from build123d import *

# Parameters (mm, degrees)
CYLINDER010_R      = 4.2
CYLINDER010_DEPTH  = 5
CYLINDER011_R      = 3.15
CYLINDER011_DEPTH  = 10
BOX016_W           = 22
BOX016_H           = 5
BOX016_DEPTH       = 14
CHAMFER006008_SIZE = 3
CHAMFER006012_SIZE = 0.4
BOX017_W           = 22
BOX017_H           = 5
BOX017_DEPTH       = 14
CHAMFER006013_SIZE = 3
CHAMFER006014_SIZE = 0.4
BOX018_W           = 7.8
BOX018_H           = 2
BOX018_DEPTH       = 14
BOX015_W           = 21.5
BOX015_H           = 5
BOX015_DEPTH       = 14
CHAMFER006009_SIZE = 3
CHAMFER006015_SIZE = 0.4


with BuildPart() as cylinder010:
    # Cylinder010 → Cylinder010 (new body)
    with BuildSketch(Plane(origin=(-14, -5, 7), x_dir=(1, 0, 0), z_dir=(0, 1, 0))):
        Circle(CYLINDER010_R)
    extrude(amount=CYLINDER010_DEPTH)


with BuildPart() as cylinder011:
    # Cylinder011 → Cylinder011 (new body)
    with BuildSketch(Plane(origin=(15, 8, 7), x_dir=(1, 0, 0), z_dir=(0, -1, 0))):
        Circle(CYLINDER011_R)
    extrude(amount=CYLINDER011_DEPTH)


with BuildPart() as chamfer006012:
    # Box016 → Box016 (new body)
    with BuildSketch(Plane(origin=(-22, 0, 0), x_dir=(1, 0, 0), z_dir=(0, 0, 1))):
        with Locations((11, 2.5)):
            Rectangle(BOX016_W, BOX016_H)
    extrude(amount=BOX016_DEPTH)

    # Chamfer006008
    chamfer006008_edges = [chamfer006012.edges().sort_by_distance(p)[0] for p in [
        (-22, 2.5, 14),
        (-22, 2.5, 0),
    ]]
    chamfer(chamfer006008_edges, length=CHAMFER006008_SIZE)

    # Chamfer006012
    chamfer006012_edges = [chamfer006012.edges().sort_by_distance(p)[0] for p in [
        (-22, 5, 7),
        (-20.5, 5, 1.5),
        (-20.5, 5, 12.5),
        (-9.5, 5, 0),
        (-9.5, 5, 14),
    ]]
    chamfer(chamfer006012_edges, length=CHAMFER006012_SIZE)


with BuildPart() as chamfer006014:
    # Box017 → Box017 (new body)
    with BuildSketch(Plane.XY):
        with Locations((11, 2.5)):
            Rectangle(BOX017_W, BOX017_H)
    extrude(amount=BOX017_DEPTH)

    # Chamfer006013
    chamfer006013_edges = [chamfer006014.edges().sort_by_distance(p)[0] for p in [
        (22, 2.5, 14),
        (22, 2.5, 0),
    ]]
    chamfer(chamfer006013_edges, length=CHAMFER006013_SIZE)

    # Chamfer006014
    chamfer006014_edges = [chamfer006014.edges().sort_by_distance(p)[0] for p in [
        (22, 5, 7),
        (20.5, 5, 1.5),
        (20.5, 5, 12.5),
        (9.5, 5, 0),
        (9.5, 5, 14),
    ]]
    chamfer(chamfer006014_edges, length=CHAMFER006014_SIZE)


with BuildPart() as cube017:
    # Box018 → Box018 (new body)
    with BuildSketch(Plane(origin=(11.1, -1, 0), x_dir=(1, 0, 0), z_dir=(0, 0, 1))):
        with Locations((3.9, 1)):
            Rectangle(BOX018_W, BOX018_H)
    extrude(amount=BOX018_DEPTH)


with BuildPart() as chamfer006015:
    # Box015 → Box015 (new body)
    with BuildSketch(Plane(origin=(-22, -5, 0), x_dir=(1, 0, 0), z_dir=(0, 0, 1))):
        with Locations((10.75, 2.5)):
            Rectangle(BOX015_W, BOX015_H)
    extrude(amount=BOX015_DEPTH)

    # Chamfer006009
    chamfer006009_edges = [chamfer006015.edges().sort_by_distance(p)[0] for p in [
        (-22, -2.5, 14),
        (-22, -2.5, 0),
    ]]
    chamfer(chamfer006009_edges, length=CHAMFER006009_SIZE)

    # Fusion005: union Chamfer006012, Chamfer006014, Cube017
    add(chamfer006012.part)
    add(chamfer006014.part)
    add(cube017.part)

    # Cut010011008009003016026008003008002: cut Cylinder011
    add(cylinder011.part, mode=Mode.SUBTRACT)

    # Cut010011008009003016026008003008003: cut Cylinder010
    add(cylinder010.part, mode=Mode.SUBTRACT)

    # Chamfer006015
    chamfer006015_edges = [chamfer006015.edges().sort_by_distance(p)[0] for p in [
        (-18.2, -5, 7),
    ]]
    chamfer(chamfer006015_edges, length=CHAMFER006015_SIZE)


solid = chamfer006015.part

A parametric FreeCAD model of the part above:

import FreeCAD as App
import Part
import Sketcher

V = App.Vector
Q = App.Units.Quantity


def edges_at(feature, points):
    """Names of the edges that pass closest to the given points."""
    edges = feature.Shape.Edges
    near = lambda p: min(range(len(edges)), key=lambda i: edges[i].distToShape(Part.Vertex(*p))[0])
    return sorted({f"Edge{near(p) + 1}" for p in points})

doc = App.newDocument("Part")
body = doc.addObject("PartDesign::Body", "Body")

sketch1 = body.newObject("Sketcher::SketchObject", "Sketch")
sketch1.AttachmentSupport = (doc.getObject("XZ_Plane"), [""])
sketch1.MapMode = "FlatFace"
sketch1.AttachmentOffset = App.Placement(V(0, 0, 5), App.Rotation())
sketch1.addGeometry(Part.Circle(V(-14, 7, 0), V(0, 0, 1), 4.2), False)
sketch1.addConstraint(Sketcher.Constraint("Diameter", 0, Q("8.4 mm")))
sketch1.addConstraint(Sketcher.Constraint("DistanceX", 0, 3, -1, 1, Q("14 mm")))
sketch1.addConstraint(Sketcher.Constraint("DistanceY", -1, 1, 0, 3, Q("7 mm")))
pad1 = body.newObject("PartDesign::Pad", "Pad")
pad1.Profile = sketch1
pad1.Length = 5
pad1.Reversed = True
body2 = doc.addObject("PartDesign::Body", "Body001")

sketch2 = body2.newObject("Sketcher::SketchObject", "Sketch001")
sketch2.AttachmentSupport = (doc.getObject("XZ_Plane001"), [""])
sketch2.MapMode = "FlatFace"
sketch2.AttachmentOffset = App.Placement(V(0, 0, -8), App.Rotation())
sketch2.addGeometry(Part.Circle(V(15, 7, 0), V(0, 0, 1), 3.1), False)
sketch2.addConstraint(Sketcher.Constraint("Diameter", 0, Q("6.3 mm")))
sketch2.addConstraint(Sketcher.Constraint("DistanceX", -1, 1, 0, 3, Q("15 mm")))
sketch2.addConstraint(Sketcher.Constraint("DistanceY", -1, 1, 0, 3, Q("7 mm")))
pad2 = body2.newObject("PartDesign::Pad", "Pad001")
pad2.Profile = sketch2
pad2.Length = 10
body3 = doc.addObject("PartDesign::Body", "Body002")

sketch3 = body3.newObject("Sketcher::SketchObject", "Sketch002")
sketch3.AttachmentSupport = (doc.getObject("XY_Plane002"), [""])
sketch3.MapMode = "FlatFace"
sketch3.addGeometry(Part.LineSegment(V(-22, 5, 0), V(-22, 0, 0)), False)
sketch3.addGeometry(Part.LineSegment(V(-22, 0, 0), V(0, 0, 0)), False)
sketch3.addGeometry(Part.LineSegment(V(0, 0, 0), V(0, 5, 0)), False)
sketch3.addGeometry(Part.LineSegment(V(0, 5, 0), V(-22, 5, 0)), False)
sketch3.addConstraint(Sketcher.Constraint("Coincident", 0, 2, 1, 1))
sketch3.addConstraint(Sketcher.Constraint("Coincident", 1, 2, 2, 1))
sketch3.addConstraint(Sketcher.Constraint("Coincident", 2, 2, 3, 1))
sketch3.addConstraint(Sketcher.Constraint("Coincident", 3, 2, 0, 1))
sketch3.addConstraint(Sketcher.Constraint("Vertical", 0))
sketch3.addConstraint(Sketcher.Constraint("Horizontal", 1))
sketch3.addConstraint(Sketcher.Constraint("Vertical", 2))
sketch3.addConstraint(Sketcher.Constraint("Horizontal", 3))
sketch3.addConstraint(Sketcher.Constraint("Coincident", 1, 2, -1, 1))
sketch3.addConstraint(Sketcher.Constraint("DistanceX", 1, 1, 1, 2, Q("22 mm")))
sketch3.addConstraint(Sketcher.Constraint("DistanceY", 0, 2, 0, 1, Q("5 mm")))
pad3 = body3.newObject("PartDesign::Pad", "Pad002")
pad3.Profile = sketch3
pad3.Length = 14
doc.recompute()

chamfer = body3.newObject("PartDesign::Chamfer", "Chamfer")
chamfer.Base = (pad3, edges_at(pad3, [(-22, 2.5, 14), (-22, 2.5, 0)]))
chamfer.Size = 3
doc.recompute()

chamfer2 = body3.newObject("PartDesign::Chamfer", "Chamfer001")
chamfer2.Base = (chamfer, edges_at(chamfer, [
    (-22, 5, 7),
    (-20.5, 5, 1.5),
    (-20.5, 5, 12.5),
    (-9.5, 5, 0),
    (-9.5, 5, 14),
]))
chamfer2.Size = 0.4
body4 = doc.addObject("PartDesign::Body", "Body003")

sketch4 = body4.newObject("Sketcher::SketchObject", "Sketch003")
sketch4.AttachmentSupport = (doc.getObject("XY_Plane003"), [""])
sketch4.MapMode = "FlatFace"
sketch4.addGeometry(Part.LineSegment(V(0, 5, 0), V(0, 0, 0)), False)
sketch4.addGeometry(Part.LineSegment(V(0, 0, 0), V(22, 0, 0)), False)
sketch4.addGeometry(Part.LineSegment(V(22, 0, 0), V(22, 5, 0)), False)
sketch4.addGeometry(Part.LineSegment(V(22, 5, 0), V(0, 5, 0)), False)
sketch4.addConstraint(Sketcher.Constraint("Coincident", 0, 2, 1, 1))
sketch4.addConstraint(Sketcher.Constraint("Coincident", 1, 2, 2, 1))
sketch4.addConstraint(Sketcher.Constraint("Coincident", 2, 2, 3, 1))
sketch4.addConstraint(Sketcher.Constraint("Coincident", 3, 2, 0, 1))
sketch4.addConstraint(Sketcher.Constraint("Vertical", 0))
sketch4.addConstraint(Sketcher.Constraint("Horizontal", 1))
sketch4.addConstraint(Sketcher.Constraint("Vertical", 2))
sketch4.addConstraint(Sketcher.Constraint("Horizontal", 3))
sketch4.addConstraint(Sketcher.Constraint("Coincident", 0, 2, -1, 1))
sketch4.addConstraint(Sketcher.Constraint("DistanceX", 1, 1, 1, 2, Q("22 mm")))
sketch4.addConstraint(Sketcher.Constraint("DistanceY", 0, 2, 0, 1, Q("5 mm")))
pad4 = body4.newObject("PartDesign::Pad", "Pad003")
pad4.Profile = sketch4
pad4.Length = 14
doc.recompute()

chamfer3 = body4.newObject("PartDesign::Chamfer", "Chamfer002")
chamfer3.Base = (pad4, edges_at(pad4, [(22, 2.5, 14), (22, 2.5, 0)]))
chamfer3.Size = 3
doc.recompute()

chamfer4 = body4.newObject("PartDesign::Chamfer", "Chamfer003")
chamfer4.Base = (chamfer3, edges_at(chamfer3, [
    (22, 5, 7),
    (20.5, 5, 1.5),
    (20.5, 5, 12.5),
    (9.5, 5, 0),
    (9.5, 5, 14),
]))
chamfer4.Size = 0.4
body5 = doc.addObject("PartDesign::Body", "Body004")

sketch5 = body5.newObject("Sketcher::SketchObject", "Sketch004")
sketch5.AttachmentSupport = (doc.getObject("XY_Plane004"), [""])
sketch5.MapMode = "FlatFace"
sketch5.addGeometry(Part.LineSegment(V(11.1, 1, 0), V(11.1, -1, 0)), False)
sketch5.addGeometry(Part.LineSegment(V(11.1, -1, 0), V(18.9, -1, 0)), False)
sketch5.addGeometry(Part.LineSegment(V(18.9, -1, 0), V(18.9, 1, 0)), False)
sketch5.addGeometry(Part.LineSegment(V(18.9, 1, 0), V(11.1, 1, 0)), False)
sketch5.addConstraint(Sketcher.Constraint("Coincident", 0, 2, 1, 1))
sketch5.addConstraint(Sketcher.Constraint("Coincident", 1, 2, 2, 1))
sketch5.addConstraint(Sketcher.Constraint("Coincident", 2, 2, 3, 1))
sketch5.addConstraint(Sketcher.Constraint("Coincident", 3, 2, 0, 1))
sketch5.addConstraint(Sketcher.Constraint("Vertical", 0))
sketch5.addConstraint(Sketcher.Constraint("Horizontal", 1))
sketch5.addConstraint(Sketcher.Constraint("Vertical", 2))
sketch5.addConstraint(Sketcher.Constraint("Horizontal", 3))
sketch5.addConstraint(Sketcher.Constraint("DistanceY", 0, 2, 0, 1, Q("2 mm")))
sketch5.addConstraint(Sketcher.Constraint("DistanceX", 1, 1, 1, 2, Q("7.8 mm")))
sketch5.addConstraint(Sketcher.Constraint("DistanceY", 0, 2, -1, 1, Q("1 mm")))
sketch5.addConstraint(Sketcher.Constraint("DistanceX", -1, 1, 0, 2, Q("11.1 mm")))
pad5 = body5.newObject("PartDesign::Pad", "Pad004")
pad5.Profile = sketch5
pad5.Length = 14
body6 = doc.addObject("PartDesign::Body", "Body005")

sketch6 = body6.newObject("Sketcher::SketchObject", "Sketch005")
sketch6.AttachmentSupport = (doc.getObject("XY_Plane005"), [""])
sketch6.MapMode = "FlatFace"
sketch6.addGeometry(Part.LineSegment(V(-22, 0, 0), V(-22, -5, 0)), False)
sketch6.addGeometry(Part.LineSegment(V(-22, -5, 0), V(0, -5, 0)), False)
sketch6.addGeometry(Part.LineSegment(V(0, -5, 0), V(0, 0, 0)), False)
sketch6.addGeometry(Part.LineSegment(V(0, 0, 0), V(-22, 0, 0)), False)
sketch6.addConstraint(Sketcher.Constraint("Coincident", 0, 2, 1, 1))
sketch6.addConstraint(Sketcher.Constraint("Coincident", 1, 2, 2, 1))
sketch6.addConstraint(Sketcher.Constraint("Coincident", 2, 2, 3, 1))
sketch6.addConstraint(Sketcher.Constraint("Coincident", 3, 2, 0, 1))
sketch6.addConstraint(Sketcher.Constraint("Vertical", 0))
sketch6.addConstraint(Sketcher.Constraint("Horizontal", 1))
sketch6.addConstraint(Sketcher.Constraint("Vertical", 2))
sketch6.addConstraint(Sketcher.Constraint("Horizontal", 3))
sketch6.addConstraint(Sketcher.Constraint("PointOnObject", 2, 2, -1))
sketch6.addConstraint(Sketcher.Constraint("DistanceY", 0, 2, 0, 1, Q("5 mm")))
sketch6.addConstraint(Sketcher.Constraint("DistanceX", 1, 1, 1, 2, Q("21.5 mm")))
sketch6.addConstraint(Sketcher.Constraint("DistanceX", 0, 2, -1, 1, Q("22 mm")))
pad6 = body6.newObject("PartDesign::Pad", "Pad005")
pad6.Profile = sketch6
pad6.Length = 14
doc.recompute()

chamfer5 = body6.newObject("PartDesign::Chamfer", "Chamfer004")
chamfer5.Base = (pad6, edges_at(pad6, [(-22, -2.5, 14), (-22, -2.5, 0)]))
chamfer5.Size = 3
doc.recompute()

boolean = body6.newObject("PartDesign::Boolean", "Boolean")
boolean.Type = "Fuse"
boolean.addObjects([body3])
doc.recompute()

boolean2 = body6.newObject("PartDesign::Boolean", "Boolean001")
boolean2.Type = "Fuse"
boolean2.addObjects([body4])
doc.recompute()

boolean3 = body6.newObject("PartDesign::Boolean", "Boolean002")
boolean3.Type = "Fuse"
boolean3.addObjects([body5])
doc.recompute()

boolean4 = body6.newObject("PartDesign::Boolean", "Boolean003")
boolean4.Type = "Cut"
boolean4.addObjects([body2])
doc.recompute()

boolean5 = body6.newObject("PartDesign::Boolean", "Boolean004")
boolean5.Type = "Cut"
boolean5.addObjects([body])
doc.recompute()

chamfer6 = body6.newObject("PartDesign::Chamfer", "Chamfer005")
chamfer6.Base = (boolean5, edges_at(boolean5, [(-18.2, -5, 7)]))
chamfer6.Size = 0.4

doc.recompute()
